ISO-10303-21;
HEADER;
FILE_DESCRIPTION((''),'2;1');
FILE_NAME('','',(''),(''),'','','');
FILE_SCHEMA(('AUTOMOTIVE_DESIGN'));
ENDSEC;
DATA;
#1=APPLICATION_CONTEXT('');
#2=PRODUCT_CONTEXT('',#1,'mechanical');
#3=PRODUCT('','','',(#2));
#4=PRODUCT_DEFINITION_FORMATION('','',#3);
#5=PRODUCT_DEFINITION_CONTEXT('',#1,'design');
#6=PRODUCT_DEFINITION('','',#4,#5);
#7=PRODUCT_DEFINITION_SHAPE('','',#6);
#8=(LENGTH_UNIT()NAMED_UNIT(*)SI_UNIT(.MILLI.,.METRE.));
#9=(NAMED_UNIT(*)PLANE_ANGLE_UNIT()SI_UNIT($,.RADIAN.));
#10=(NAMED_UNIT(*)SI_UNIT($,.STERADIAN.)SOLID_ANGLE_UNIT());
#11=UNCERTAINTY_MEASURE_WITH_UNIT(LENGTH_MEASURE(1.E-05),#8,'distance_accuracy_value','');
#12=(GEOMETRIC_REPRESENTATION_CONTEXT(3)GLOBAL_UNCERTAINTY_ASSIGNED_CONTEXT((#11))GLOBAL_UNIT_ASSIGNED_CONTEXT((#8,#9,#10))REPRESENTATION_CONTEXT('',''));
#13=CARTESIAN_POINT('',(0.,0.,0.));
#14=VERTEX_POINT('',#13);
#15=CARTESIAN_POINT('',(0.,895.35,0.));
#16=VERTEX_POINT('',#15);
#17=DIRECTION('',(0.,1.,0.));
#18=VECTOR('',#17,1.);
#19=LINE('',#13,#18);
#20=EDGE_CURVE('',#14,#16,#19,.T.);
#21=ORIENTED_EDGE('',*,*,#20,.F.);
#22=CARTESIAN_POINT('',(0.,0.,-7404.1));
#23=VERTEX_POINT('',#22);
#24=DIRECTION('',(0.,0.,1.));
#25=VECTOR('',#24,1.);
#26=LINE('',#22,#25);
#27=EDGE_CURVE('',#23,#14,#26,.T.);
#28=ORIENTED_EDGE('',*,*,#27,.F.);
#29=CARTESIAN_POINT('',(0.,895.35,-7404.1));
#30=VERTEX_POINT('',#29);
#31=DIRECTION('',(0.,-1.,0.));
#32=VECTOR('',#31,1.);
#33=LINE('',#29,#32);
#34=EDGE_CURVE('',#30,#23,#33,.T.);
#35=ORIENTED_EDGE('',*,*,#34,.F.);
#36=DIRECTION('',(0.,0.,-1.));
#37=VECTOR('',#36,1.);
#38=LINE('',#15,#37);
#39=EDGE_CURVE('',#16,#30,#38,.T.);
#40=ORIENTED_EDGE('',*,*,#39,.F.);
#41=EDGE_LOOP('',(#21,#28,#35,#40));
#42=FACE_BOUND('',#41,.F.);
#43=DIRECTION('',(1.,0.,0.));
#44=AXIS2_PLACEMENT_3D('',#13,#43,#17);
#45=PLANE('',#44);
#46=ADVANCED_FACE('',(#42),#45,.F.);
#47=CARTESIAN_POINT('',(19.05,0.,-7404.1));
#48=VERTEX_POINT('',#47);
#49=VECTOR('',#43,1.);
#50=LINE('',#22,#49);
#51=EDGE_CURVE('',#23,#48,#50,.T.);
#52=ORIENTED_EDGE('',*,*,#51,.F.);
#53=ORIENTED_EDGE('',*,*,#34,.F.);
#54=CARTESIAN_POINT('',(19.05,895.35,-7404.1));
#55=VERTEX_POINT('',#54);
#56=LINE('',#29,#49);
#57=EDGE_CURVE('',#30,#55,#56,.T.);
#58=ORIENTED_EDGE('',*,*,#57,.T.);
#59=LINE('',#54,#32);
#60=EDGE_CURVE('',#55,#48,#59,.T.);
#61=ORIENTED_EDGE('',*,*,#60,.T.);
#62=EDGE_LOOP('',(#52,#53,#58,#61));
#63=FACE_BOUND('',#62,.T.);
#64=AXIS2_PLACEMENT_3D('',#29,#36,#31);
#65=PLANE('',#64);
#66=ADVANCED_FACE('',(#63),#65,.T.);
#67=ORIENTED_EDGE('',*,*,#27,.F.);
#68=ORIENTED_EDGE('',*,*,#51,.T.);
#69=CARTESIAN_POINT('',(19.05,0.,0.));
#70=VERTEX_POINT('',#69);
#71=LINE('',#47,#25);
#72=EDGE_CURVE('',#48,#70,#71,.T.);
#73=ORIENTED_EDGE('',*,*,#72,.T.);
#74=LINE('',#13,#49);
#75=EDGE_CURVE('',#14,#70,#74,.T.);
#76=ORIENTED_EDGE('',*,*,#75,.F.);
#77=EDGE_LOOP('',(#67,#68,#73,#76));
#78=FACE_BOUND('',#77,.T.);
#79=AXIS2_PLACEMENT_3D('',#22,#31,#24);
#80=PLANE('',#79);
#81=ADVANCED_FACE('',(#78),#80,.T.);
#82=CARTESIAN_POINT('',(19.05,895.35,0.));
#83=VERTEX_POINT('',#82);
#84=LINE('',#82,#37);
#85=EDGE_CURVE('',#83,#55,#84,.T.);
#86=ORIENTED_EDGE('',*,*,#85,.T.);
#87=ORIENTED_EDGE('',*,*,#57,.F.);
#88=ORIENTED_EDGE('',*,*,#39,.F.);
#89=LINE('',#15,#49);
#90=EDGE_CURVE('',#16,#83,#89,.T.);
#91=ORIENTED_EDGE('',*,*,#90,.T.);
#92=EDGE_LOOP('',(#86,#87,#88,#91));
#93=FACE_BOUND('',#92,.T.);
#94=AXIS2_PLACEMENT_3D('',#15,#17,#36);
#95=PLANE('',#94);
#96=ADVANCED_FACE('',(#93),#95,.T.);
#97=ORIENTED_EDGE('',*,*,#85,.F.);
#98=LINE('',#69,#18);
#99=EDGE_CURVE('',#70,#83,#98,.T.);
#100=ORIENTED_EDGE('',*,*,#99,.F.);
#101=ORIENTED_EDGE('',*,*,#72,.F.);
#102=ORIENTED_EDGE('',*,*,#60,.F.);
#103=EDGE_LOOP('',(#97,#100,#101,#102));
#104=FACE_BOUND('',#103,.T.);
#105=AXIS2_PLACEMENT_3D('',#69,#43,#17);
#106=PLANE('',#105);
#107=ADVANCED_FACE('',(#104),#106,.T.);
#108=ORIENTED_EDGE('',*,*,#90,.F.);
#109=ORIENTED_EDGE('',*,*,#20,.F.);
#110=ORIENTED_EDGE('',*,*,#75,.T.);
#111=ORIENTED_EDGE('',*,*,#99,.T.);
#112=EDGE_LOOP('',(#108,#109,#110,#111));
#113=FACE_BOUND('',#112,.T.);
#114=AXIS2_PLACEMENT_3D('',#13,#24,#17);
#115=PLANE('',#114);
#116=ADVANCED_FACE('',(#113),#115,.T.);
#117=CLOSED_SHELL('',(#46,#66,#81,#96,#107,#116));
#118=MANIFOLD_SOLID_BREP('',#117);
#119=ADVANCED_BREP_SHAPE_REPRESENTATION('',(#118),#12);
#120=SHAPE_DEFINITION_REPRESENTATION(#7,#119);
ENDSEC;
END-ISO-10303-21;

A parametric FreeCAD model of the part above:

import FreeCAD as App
import Part
import Sketcher
Q = App.Units.Quantity

doc = App.newDocument("Part")
params = doc.addObject("Spreadsheet::Sheet", "Params")
for row, (alias, value) in enumerate([
    ("sketch1_height", "291.5 in"),
    ("sketch1_width", "35.25 in"),
    ("pad1_length", "0.75 in"),
], start=1):
    params.set(f"A{row}", alias)
    params.set(f"B{row}", "=" + value)
    params.setAlias(f"B{row}", alias)

body = doc.addObject("PartDesign::Body", "Body")

# Sketch on YZ plane
sketch1 = body.newObject("Sketcher::SketchObject", "Sketch")
sketch1.AttachmentSupport = (doc.getObject("YZ_Plane"), [""])
sketch1.MapMode = "FlatFace"
sketch1.addGeometry(Part.LineSegment(App.Vector(895, 0, 0), App.Vector(0, 0, 0)), False)
sketch1.addGeometry(Part.LineSegment(App.Vector(0, 0, 0), App.Vector(0, -7404, 0)), False)
sketch1.addGeometry(Part.LineSegment(App.Vector(0, -7404, 0), App.Vector(895, -7404, 0)), False)
sketch1.addGeometry(Part.LineSegment(App.Vector(895, -7404, 0), App.Vector(895, 0, 0)), False)
sketch1.addConstraint(Sketcher.Constraint("Coincident", 0, 2, 1, 1))
sketch1.addConstraint(Sketcher.Constraint("Coincident", 1, 2, 2, 1))
sketch1.addConstraint(Sketcher.Constraint("Coincident", 2, 2, 3, 1))
sketch1.addConstraint(Sketcher.Constraint("Coincident", 3, 2, 0, 1))
sketch1.addConstraint(Sketcher.Constraint("Horizontal", 0))
sketch1.addConstraint(Sketcher.Constraint("Vertical", 1))
sketch1.addConstraint(Sketcher.Constraint("Horizontal", 2))
sketch1.addConstraint(Sketcher.Constraint("Vertical", 3))
sketch1.addConstraint(Sketcher.Constraint("Coincident", 0, 2, -1, 1))
sketch1.addConstraint(Sketcher.Constraint("DistanceY", 1, 2, 1, 1, Q("291.5 in")))
sketch1.addConstraint(Sketcher.Constraint("DistanceX", 0, 2, 0, 1, Q("35.25 in")))
sketch1.setExpression("Constraints[9]", "Params.sketch1_height")
sketch1.setExpression("Constraints[10]", "Params.sketch1_width")
pad1 = body.newObject("PartDesign::Pad", "Pad")
pad1.Profile = sketch1
pad1.setExpression("Length", "Params.pad1_length")

doc.recompute()
